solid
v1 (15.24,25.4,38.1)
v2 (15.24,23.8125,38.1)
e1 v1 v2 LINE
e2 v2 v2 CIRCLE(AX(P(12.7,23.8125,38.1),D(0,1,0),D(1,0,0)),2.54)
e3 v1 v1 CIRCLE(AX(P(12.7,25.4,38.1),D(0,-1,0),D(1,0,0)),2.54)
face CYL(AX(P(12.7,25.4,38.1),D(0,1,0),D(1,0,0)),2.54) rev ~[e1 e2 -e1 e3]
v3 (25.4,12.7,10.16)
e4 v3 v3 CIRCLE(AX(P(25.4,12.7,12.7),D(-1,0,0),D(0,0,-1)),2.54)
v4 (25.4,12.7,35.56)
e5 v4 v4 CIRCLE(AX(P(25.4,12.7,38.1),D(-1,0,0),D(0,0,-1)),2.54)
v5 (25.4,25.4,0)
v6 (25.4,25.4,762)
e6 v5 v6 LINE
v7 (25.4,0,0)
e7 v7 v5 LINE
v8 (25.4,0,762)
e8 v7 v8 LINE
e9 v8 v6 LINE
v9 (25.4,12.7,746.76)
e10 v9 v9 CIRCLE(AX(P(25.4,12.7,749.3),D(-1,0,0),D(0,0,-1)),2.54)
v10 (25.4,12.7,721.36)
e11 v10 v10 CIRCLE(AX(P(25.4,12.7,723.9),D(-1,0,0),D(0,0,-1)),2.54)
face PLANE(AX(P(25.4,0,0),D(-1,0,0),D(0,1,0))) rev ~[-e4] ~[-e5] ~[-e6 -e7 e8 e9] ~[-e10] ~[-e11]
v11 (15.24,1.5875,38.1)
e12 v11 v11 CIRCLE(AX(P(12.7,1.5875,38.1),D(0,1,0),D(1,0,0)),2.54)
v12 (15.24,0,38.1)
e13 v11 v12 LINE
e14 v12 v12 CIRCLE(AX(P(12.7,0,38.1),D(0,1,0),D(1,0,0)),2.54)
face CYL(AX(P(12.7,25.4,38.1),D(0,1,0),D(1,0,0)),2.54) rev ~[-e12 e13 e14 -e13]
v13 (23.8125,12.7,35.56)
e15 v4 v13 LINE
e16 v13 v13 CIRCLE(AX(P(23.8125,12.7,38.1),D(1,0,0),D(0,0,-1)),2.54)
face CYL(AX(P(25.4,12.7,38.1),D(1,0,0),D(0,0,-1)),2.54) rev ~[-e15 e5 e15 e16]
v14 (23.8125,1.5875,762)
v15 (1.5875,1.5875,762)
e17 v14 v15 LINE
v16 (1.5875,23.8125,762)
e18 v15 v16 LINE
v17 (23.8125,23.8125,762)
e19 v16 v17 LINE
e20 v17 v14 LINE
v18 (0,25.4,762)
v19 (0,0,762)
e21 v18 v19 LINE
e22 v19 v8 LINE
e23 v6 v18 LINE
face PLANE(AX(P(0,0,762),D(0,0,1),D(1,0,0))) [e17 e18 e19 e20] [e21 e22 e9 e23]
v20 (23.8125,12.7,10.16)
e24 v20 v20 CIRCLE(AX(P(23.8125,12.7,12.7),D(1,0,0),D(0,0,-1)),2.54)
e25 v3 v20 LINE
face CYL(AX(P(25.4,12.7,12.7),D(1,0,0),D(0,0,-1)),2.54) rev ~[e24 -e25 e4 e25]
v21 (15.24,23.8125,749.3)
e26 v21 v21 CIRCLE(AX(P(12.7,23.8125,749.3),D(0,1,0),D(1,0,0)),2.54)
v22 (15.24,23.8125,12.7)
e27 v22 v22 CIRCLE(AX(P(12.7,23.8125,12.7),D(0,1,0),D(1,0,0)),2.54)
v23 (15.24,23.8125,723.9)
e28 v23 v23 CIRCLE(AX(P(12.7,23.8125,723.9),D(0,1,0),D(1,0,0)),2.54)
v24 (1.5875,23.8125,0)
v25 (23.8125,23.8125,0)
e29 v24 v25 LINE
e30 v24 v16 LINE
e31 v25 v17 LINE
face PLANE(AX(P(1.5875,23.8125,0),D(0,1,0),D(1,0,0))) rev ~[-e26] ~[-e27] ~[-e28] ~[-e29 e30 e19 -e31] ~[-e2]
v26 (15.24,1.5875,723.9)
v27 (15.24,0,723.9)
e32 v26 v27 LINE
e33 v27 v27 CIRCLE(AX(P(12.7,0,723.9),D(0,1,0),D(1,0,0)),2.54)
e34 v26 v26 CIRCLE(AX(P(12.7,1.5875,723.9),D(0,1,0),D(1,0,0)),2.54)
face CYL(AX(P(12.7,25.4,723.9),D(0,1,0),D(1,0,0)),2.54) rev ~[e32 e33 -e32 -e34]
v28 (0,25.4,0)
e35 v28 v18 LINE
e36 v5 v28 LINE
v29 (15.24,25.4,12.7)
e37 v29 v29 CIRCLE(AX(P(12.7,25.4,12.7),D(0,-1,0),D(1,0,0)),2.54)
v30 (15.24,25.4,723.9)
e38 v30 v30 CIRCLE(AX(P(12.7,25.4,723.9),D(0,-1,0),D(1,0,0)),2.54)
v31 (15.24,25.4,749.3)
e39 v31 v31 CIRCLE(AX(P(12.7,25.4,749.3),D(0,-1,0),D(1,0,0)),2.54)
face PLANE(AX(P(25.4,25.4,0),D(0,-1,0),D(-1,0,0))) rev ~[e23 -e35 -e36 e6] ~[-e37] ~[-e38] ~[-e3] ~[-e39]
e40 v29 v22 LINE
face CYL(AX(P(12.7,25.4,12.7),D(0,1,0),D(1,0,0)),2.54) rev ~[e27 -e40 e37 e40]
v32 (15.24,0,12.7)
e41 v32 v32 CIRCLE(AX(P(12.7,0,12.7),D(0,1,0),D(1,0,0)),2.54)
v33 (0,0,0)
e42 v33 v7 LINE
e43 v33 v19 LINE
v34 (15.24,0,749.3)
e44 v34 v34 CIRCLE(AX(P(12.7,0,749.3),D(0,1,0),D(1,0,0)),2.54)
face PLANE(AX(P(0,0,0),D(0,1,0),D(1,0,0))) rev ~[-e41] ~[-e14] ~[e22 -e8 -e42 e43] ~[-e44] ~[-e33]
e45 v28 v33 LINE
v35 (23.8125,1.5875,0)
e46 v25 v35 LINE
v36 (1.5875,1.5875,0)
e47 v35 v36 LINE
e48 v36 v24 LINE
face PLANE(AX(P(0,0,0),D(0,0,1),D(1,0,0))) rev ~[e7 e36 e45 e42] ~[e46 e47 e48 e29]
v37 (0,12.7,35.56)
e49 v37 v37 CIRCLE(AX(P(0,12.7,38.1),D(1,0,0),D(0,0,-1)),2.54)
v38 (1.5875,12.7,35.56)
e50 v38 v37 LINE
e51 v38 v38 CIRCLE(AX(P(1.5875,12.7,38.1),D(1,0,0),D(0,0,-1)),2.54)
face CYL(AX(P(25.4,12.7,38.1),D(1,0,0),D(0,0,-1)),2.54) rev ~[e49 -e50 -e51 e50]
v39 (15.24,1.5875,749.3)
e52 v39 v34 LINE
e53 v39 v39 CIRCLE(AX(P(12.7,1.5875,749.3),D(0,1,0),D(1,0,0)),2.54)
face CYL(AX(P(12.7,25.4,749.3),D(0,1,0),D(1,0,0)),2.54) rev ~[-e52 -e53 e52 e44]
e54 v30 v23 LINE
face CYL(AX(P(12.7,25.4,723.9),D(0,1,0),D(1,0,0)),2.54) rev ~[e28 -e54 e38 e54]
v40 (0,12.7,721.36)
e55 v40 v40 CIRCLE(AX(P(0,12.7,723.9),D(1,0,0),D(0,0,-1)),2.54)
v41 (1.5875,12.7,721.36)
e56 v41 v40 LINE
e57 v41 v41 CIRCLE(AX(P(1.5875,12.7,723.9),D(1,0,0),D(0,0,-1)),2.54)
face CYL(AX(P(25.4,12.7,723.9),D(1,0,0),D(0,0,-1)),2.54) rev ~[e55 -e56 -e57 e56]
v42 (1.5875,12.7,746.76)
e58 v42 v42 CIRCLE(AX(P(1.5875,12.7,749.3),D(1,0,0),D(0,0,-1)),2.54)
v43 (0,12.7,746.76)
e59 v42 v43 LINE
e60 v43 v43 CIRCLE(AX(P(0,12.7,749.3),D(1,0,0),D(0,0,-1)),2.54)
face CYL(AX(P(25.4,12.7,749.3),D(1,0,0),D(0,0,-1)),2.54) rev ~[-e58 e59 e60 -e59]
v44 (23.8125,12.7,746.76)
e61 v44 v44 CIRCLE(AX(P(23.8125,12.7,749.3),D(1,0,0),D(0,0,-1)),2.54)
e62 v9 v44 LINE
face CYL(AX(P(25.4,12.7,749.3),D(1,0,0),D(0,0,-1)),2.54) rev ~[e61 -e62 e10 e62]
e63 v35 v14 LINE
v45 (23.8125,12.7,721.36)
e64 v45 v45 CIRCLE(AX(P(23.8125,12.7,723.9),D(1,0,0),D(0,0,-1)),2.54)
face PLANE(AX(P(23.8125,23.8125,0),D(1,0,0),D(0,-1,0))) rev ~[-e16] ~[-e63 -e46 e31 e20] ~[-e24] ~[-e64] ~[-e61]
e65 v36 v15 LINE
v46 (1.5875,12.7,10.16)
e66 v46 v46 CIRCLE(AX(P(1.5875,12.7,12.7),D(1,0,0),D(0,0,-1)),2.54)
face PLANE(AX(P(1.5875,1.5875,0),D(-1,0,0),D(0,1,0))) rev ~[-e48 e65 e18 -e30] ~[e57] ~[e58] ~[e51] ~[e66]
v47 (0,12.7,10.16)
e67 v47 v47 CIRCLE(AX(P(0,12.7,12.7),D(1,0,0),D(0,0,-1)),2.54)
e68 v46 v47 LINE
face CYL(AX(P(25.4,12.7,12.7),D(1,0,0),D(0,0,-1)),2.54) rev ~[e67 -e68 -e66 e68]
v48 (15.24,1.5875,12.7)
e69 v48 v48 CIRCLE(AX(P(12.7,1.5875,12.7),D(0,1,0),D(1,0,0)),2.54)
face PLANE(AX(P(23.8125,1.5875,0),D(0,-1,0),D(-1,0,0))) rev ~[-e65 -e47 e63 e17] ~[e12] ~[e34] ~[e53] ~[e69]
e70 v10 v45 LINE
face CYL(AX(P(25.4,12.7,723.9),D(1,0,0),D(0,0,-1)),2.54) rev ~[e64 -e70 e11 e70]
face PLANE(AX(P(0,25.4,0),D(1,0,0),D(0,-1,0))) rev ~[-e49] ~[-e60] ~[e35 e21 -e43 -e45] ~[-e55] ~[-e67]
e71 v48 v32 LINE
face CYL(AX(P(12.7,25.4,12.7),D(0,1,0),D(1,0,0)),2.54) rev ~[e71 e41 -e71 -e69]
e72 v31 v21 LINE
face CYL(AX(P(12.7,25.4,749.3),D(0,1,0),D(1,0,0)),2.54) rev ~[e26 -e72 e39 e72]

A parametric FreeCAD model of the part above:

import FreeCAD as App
import Part
import Sketcher
from FreeCAD import Vector
Q = App.Units.Quantity


def add_polygon(sketch, points):
    """Adds a closed chain of lines whose ends are joined by coincident constraints."""
    first, n = sketch.GeometryCount, len(points)
    for a, b in zip(points, points[1:] + points[:1]):
        sketch.addGeometry(Part.LineSegment(App.Vector(*a, 0), App.Vector(*b, 0)), False)
    for i in range(n):
        sketch.addConstraint(Sketcher.Constraint("Coincident", first + i, 2, first + (i + 1) % n, 1))

doc = App.newDocument("Part")
params = doc.addObject("Spreadsheet::Sheet", "Params")
for row, (alias, value) in enumerate([
    ("sketch1_width", "1 in"),
    ("pad1_length", "30 in"),
    ("sketch2_diameter", "0.2 in"),
    ("pocket1_length", "1 in"),
    ("sketch3_diameter", "0.2 in"),
    ("pocket2_length", "1 in"),
], start=1):
    params.set(f"A{row}", alias)
    params.set(f"B{row}", "=" + value)
    params.setAlias(f"B{row}", alias)

body = doc.addObject("PartDesign::Body", "Body")

sketch1 = body.newObject("Sketcher::SketchObject", "Sketch")
sketch1.AttachmentSupport = (doc.getObject("XY_Plane"), [""])
sketch1.MapMode = "FlatFace"
add_polygon(sketch1, [(0, 25), (0, 0), (25, 0), (25, 25)])
add_polygon(sketch1, [(2, 2), (2, 24), (24, 24), (24, 2)])
sketch1.addConstraint(Sketcher.Constraint("Vertical", 0))
sketch1.addConstraint(Sketcher.Constraint("Horizontal", 1))
sketch1.addConstraint(Sketcher.Constraint("Vertical", 2))
sketch1.addConstraint(Sketcher.Constraint("Horizontal", 3))
sketch1.addConstraint(Sketcher.Constraint("Vertical", 4))
sketch1.addConstraint(Sketcher.Constraint("Horizontal", 5))
sketch1.addConstraint(Sketcher.Constraint("Vertical", 6))
sketch1.addConstraint(Sketcher.Constraint("Horizontal", 7))
sketch1.addConstraint(Sketcher.Constraint("Coincident", 0, 2, -1, 1))
sketch1.addConstraint(Sketcher.Constraint("Equal", 3, 0))
sketch1.addConstraint(Sketcher.Constraint("Equal", 7, 4))
sketch1.addConstraint(Sketcher.Constraint("DistanceX", 1, 1, 1, 2, Q("1 in")))
sketch1.addConstraint(Sketcher.Constraint("DistanceX", -1, 1, 4, 2, Q("0.0625 in")))
sketch1.addConstraint(Sketcher.Constraint("DistanceY", -1, 1, 6, 2, Q("0.0625 in")))
sketch1.addConstraint(Sketcher.Constraint("DistanceY", 4, 2, 3, 2, Q("0.0625 in")))
sketch1.setExpression("Constraints[19]", "Params.sketch1_width")
pad1 = body.newObject("PartDesign::Pad", "Pad")
pad1.Profile = sketch1
pad1.setExpression("Length", "Params.pad1_length")

sketch2 = body.newObject("Sketcher::SketchObject", "Sketch001")
sketch2.AttachmentSupport = (doc.getObject("YZ_Plane"), [""])
sketch2.MapMode = "FlatFace"
sketch2.AttachmentOffset = App.Placement(Vector(0, 0, 1 * 25.4), App.Rotation())
sketch2.addGeometry(Part.Circle(Vector(12.7, 12.7, 0), Vector(0, 0, 1), 2.5), False)
sketch2.addGeometry(Part.Circle(Vector(12.7, 749.3, 0), Vector(0, 0, 1), 2.5), False)
sketch2.addGeometry(Part.Circle(Vector(12.7, 723.9, 0), Vector(0, 0, 1), 2.5), False)
sketch2.addGeometry(Part.Circle(Vector(12.7, 38.1, 0), Vector(0, 0, 1), 2.5), False)
sketch2.addConstraint(Sketcher.Constraint("Equal", 0, 1))
sketch2.addConstraint(Sketcher.Constraint("Equal", 1, 2))
sketch2.addConstraint(Sketcher.Constraint("Equal", 2, 3))
sketch2.addConstraint(Sketcher.Constraint("Vertical", 0, 3, 1, 3))
sketch2.addConstraint(Sketcher.Constraint("Vertical", 1, 3, 2, 3))
sketch2.addConstraint(Sketcher.Constraint("Vertical", 2, 3, 3, 3))
sketch2.addConstraint(Sketcher.Constraint("Diameter", 0, Q("0.2 in")))
sketch2.addConstraint(Sketcher.Constraint("DistanceY", 2, 3, 1, 3, Q("1 in")))
sketch2.addConstraint(Sketcher.Constraint("DistanceY", 0, 3, 3, 3, Q("1 in")))
sketch2.addConstraint(Sketcher.Constraint("DistanceX", -1, 1, 0, 3, Q("0.5 in")))
sketch2.addConstraint(Sketcher.Constraint("DistanceY", -1, 1, 0, 3, Q("0.5 in")))
sketch2.addConstraint(Sketcher.Constraint("DistanceY", 0, 3, 1, 3, Q("29 in")))
sketch2.setExpression("Constraints[6]", "Params.sketch2_diameter")
pocket1 = body.newObject("PartDesign::Pocket", "Pocket")
pocket1.Profile = sketch2
pocket1.setExpression("Length", "Params.pocket1_length")

sketch3 = body.newObject("Sketcher::SketchObject", "Sketch002")
sketch3.AttachmentSupport = (doc.getObject("XZ_Plane"), [""])
sketch3.MapMode = "FlatFace"
sketch3.AttachmentOffset = App.Placement(Vector(0, 0, -1 * 25.4), App.Rotation())
sketch3.addGeometry(Part.Circle(Vector(12.7, 12.7, 0), Vector(0, 0, 1), 2.5), False)
sketch3.addGeometry(Part.Circle(Vector(12.7, 749.3, 0), Vector(0, 0, 1), 2.5), False)
sketch3.addGeometry(Part.Circle(Vector(12.7, 723.9, 0), Vector(0, 0, 1), 2.5), False)
sketch3.addGeometry(Part.Circle(Vector(12.7, 38.1, 0), Vector(0, 0, 1), 2.5), False)
sketch3.addConstraint(Sketcher.Constraint("Equal", 0, 1))
sketch3.addConstraint(Sketcher.Constraint("Equal", 1, 2))
sketch3.addConstraint(Sketcher.Constraint("Equal", 2, 3))
sketch3.addConstraint(Sketcher.Constraint("Vertical", 0, 3, 1, 3))
sketch3.addConstraint(Sketcher.Constraint("Vertical", 1, 3, 2, 3))
sketch3.addConstraint(Sketcher.Constraint("Vertical", 2, 3, 3, 3))
sketch3.addConstraint(Sketcher.Constraint("Diameter", 0, Q("0.2 in")))
sketch3.addConstraint(Sketcher.Constraint("DistanceY", 2, 3, 1, 3, Q("1 in")))
sketch3.addConstraint(Sketcher.Constraint("DistanceY", 0, 3, 3, 3, Q("1 in")))
sketch3.addConstraint(Sketcher.Constraint("DistanceX", -1, 1, 0, 3, Q("0.5 in")))
sketch3.addConstraint(Sketcher.Constraint("DistanceY", -1, 1, 0, 3, Q("0.5 in")))
sketch3.addConstraint(Sketcher.Constraint("DistanceY", 0, 3, 1, 3, Q("29 in")))
sketch3.setExpression("Constraints[6]", "Params.sketch3_diameter")
pocket2 = body.newObject("PartDesign::Pocket", "Pocket001")
pocket2.Profile = sketch3
pocket2.setExpression("Length", "Params.pocket2_length")
pocket2.Reversed = True

doc.recompute()
